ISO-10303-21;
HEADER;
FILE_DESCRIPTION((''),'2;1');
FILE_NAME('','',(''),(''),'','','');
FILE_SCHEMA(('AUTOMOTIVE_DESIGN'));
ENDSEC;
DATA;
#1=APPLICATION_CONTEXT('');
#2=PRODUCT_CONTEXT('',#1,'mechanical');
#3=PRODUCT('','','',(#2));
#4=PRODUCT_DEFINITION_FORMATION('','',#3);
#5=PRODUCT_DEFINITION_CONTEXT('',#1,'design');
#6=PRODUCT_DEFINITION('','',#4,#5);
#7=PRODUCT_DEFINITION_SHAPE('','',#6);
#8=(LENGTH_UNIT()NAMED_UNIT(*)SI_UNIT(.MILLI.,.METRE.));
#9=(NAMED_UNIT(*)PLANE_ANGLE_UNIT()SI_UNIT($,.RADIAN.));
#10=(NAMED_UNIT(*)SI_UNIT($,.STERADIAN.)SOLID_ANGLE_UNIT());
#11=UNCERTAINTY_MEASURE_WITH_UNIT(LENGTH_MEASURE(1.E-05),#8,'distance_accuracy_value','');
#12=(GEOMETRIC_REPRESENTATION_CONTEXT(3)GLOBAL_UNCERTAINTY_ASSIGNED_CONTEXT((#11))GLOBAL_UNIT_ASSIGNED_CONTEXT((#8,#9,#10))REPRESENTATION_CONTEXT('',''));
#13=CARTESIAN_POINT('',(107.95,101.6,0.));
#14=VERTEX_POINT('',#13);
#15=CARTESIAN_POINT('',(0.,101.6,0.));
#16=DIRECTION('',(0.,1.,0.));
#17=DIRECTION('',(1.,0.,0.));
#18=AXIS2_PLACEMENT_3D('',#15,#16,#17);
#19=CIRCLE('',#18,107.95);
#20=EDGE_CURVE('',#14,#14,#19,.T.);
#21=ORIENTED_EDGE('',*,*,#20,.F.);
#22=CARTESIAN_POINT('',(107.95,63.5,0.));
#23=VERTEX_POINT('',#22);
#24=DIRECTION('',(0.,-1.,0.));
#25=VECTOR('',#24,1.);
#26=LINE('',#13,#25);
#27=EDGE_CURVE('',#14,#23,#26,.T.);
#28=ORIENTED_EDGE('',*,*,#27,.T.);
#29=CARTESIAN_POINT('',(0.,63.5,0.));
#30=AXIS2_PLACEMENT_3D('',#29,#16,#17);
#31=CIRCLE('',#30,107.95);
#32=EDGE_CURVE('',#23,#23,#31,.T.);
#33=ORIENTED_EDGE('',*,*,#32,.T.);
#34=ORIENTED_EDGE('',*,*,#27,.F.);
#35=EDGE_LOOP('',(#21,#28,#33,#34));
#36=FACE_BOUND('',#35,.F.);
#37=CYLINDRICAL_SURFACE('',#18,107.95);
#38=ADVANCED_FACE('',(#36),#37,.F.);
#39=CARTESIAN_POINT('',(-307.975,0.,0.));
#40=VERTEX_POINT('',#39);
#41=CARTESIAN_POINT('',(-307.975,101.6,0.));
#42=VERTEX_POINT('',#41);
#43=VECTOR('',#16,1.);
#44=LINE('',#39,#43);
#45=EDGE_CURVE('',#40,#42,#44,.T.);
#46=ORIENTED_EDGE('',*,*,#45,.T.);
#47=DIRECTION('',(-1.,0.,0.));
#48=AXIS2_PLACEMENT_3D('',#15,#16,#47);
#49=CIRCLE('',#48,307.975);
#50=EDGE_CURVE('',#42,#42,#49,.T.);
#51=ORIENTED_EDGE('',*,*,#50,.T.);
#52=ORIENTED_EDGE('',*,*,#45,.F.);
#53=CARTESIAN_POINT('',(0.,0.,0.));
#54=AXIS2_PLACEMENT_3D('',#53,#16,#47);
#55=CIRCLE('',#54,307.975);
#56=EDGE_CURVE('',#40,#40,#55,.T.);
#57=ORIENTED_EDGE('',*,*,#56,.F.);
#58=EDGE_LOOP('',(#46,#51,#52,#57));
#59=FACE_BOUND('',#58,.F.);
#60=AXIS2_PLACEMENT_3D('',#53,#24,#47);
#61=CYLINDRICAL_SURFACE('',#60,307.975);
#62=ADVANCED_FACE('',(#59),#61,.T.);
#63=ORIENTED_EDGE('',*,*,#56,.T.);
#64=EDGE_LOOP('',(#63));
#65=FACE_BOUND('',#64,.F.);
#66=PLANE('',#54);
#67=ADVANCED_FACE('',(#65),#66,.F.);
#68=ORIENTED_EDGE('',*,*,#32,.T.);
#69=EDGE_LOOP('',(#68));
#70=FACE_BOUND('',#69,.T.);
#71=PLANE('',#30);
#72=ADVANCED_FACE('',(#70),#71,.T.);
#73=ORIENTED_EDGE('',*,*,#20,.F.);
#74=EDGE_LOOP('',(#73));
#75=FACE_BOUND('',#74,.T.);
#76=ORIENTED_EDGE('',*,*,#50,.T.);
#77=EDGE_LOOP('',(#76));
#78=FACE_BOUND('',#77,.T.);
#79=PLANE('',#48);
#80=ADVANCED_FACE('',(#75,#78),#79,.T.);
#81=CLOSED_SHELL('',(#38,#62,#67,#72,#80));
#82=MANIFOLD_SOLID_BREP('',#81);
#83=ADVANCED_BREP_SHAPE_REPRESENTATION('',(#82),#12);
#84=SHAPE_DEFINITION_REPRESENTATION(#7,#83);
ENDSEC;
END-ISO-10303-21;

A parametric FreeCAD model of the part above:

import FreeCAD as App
import Part
import Sketcher

V = App.Vector
Q = App.Units.Quantity

doc = App.newDocument("Part")
body = doc.addObject("PartDesign::Body", "Body")

# Sketch on XZ plane
sketch1 = body.newObject("Sketcher::SketchObject", "Sketch")
sketch1.AttachmentSupport = (doc.getObject("XZ_Plane"), [""])
sketch1.MapMode = "FlatFace"
sketch1.addGeometry(Part.Circle(V(0, 0, 0), V(0, 0, 1), 308), False)
sketch1.addConstraint([
    Sketcher.Constraint("Coincident", 0, 3, -1, 1),
    Sketcher.Constraint("Diameter", 0, Q("24.25 in")),
])
pad1 = body.newObject("PartDesign::Pad", "Pad")
pad1.Profile = sketch1
pad1.Length = Q("4 in")
pad1.Reversed = True

# Sketch on XZ plane
sketch2 = body.newObject("Sketcher::SketchObject", "Sketch001")
sketch2.AttachmentSupport = (doc.getObject("XZ_Plane"), [""])
sketch2.MapMode = "FlatFace"
sketch2.AttachmentOffset = App.Placement(V(0, 0, -4 * 25.4), App.Rotation())
sketch2.addGeometry(Part.Circle(V(0, 0, 0), V(0, 0, 1), 108), False)
sketch2.addConstraint([
    Sketcher.Constraint("Coincident", 0, 3, -1, 1),
    Sketcher.Constraint("Diameter", 0, Q("8.5 in")),
])
pocket1 = body.newObject("PartDesign::Pocket", "Pocket")
pocket1.Profile = sketch2
pocket1.Length = Q("1.5 in")
pocket1.Reversed = True

doc.recompute()
